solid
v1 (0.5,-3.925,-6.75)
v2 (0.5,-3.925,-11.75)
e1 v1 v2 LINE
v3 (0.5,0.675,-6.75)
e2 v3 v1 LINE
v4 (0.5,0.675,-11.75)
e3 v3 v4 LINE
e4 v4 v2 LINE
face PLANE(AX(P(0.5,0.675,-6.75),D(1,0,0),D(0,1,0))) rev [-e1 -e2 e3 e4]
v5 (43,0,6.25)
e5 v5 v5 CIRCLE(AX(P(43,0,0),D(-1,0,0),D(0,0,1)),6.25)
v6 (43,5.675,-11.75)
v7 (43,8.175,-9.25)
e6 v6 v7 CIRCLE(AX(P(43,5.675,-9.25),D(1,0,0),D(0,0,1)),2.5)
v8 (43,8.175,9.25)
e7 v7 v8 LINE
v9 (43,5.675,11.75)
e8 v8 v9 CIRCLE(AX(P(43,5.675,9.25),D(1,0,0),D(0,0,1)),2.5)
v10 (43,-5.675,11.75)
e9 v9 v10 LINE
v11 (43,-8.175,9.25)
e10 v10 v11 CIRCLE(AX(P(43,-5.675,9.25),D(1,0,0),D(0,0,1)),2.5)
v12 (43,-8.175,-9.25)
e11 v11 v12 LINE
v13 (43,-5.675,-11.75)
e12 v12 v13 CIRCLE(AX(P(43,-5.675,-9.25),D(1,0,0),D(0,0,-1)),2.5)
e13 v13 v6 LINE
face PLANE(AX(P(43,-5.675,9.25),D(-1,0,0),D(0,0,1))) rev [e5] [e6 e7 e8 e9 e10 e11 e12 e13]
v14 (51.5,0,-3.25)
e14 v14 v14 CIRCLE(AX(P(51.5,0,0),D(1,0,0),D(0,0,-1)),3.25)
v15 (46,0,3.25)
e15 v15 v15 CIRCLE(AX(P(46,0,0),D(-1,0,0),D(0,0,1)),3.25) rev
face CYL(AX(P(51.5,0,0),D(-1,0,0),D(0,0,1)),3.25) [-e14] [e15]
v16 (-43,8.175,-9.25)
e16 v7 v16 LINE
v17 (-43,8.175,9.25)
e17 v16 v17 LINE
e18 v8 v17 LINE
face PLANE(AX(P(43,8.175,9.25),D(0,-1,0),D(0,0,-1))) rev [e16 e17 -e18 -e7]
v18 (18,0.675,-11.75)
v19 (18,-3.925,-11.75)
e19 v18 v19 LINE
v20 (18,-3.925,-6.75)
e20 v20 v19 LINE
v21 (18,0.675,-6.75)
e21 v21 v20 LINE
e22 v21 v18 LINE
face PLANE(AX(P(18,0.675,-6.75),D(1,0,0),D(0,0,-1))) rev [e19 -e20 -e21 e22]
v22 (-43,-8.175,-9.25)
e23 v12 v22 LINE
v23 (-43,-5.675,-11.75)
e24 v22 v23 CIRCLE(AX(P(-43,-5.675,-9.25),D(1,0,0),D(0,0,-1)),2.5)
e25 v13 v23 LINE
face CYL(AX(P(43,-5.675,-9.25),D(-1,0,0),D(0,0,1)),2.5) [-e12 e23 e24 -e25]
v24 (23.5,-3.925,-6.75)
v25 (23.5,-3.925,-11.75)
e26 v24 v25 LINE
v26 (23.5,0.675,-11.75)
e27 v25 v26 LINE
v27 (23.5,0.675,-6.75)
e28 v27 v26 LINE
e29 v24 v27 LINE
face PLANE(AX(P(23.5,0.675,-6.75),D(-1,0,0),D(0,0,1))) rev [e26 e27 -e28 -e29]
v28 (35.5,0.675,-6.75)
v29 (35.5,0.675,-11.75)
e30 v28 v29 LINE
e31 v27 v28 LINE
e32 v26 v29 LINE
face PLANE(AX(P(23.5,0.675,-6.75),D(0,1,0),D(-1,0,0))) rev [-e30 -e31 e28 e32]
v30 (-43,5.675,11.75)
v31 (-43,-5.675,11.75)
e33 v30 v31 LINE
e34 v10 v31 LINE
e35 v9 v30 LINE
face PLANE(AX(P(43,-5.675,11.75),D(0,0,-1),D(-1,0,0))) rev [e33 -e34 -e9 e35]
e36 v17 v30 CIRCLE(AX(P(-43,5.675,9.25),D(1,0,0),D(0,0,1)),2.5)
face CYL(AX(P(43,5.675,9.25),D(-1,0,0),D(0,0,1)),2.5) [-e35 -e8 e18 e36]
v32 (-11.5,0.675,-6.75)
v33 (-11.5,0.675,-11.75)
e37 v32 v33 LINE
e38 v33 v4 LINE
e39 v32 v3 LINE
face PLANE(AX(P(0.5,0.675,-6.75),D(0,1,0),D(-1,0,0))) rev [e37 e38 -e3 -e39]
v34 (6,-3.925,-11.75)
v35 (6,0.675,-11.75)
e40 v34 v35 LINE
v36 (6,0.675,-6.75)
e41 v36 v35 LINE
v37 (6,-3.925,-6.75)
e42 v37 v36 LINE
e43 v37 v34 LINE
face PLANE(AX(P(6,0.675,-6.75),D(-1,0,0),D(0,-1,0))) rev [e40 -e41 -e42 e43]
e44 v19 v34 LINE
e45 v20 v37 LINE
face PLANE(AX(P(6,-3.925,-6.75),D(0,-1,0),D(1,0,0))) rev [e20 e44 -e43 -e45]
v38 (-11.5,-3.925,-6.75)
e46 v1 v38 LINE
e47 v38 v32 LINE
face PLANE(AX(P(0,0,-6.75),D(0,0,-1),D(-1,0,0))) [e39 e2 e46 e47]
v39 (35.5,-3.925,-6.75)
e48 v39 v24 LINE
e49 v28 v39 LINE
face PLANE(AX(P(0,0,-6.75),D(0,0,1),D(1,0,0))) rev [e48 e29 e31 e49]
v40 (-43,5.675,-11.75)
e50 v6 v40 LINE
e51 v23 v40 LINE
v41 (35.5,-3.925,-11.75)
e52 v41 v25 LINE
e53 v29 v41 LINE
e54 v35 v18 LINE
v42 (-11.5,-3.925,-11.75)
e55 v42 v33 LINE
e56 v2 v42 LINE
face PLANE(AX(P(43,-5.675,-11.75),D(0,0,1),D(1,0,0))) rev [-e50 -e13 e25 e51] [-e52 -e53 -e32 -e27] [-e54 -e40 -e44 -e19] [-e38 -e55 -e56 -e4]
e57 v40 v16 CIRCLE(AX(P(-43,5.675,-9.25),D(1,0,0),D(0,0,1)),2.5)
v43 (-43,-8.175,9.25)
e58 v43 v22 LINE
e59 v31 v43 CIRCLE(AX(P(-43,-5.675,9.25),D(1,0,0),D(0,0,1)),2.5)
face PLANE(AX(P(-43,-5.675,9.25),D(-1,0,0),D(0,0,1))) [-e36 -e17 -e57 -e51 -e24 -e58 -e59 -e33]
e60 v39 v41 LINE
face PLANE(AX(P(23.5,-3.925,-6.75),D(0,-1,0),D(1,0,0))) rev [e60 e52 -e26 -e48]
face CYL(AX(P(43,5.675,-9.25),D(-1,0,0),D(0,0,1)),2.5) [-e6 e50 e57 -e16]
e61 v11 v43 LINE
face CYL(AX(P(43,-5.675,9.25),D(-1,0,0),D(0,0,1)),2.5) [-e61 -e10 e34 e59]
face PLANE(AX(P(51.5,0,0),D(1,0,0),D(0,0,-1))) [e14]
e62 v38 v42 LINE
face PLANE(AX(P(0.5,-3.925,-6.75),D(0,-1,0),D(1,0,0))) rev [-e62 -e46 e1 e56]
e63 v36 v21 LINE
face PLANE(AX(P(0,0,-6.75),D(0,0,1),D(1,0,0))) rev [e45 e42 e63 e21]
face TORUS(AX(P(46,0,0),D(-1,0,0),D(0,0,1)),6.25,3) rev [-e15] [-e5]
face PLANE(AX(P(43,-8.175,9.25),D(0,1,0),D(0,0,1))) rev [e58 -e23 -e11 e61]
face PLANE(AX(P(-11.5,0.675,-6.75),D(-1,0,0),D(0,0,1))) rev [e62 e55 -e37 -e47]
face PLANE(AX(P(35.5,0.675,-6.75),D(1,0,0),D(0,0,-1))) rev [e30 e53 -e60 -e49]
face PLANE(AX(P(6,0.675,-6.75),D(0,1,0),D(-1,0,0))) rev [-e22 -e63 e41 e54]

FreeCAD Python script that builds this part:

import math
import FreeCAD as App
import Part
import Sketcher


def edges_at(feature, points):
    """Names of the edges that pass closest to the given points."""
    edges = feature.Shape.Edges
    near = lambda p: min(range(len(edges)), key=lambda i: edges[i].distToShape(Part.Vertex(*p))[0])
    return sorted({f"Edge{near(p) + 1}" for p in points})

doc = App.newDocument("Part")
body = doc.addObject("PartDesign::Body", "Body")

sketch1 = body.newObject("Sketcher::SketchObject", "Sketch")
sketch1.AttachmentSupport = (doc.getObject("YZ_Plane"), [""])
sketch1.MapMode = "FlatFace"
sketch1.addGeometry([
    Part.LineSegment(App.Vector(-8.2, 9.2, 0), App.Vector(-8.2, -9.2, 0)),
    Part.ArcOfCircle(Part.Circle(App.Vector(-5.7, -9.2, 0), App.Vector(0, 0, 1), 2.5), math.radians(180), math.radians(270)),
    Part.LineSegment(App.Vector(-5.7, -11.8, 0), App.Vector(5.7, -11.8, 0)),
    Part.ArcOfCircle(Part.Circle(App.Vector(5.7, -9.2, 0), App.Vector(0, 0, 1), 2.5), math.radians(-90), math.radians(0)),
    Part.LineSegment(App.Vector(8.2, -9.2, 0), App.Vector(8.2, 9.2, 0)),
    Part.ArcOfCircle(Part.Circle(App.Vector(5.7, 9.2, 0), App.Vector(0, 0, 1), 2.5), math.radians(0), math.radians(90)),
    Part.LineSegment(App.Vector(5.7, 11.8, 0), App.Vector(-5.7, 11.8, 0)),
    Part.ArcOfCircle(Part.Circle(App.Vector(-5.7, 9.2, 0), App.Vector(0, 0, 1), 2.5), math.radians(90), math.radians(180)),
], False)
sketch1.addConstraint([
    Sketcher.Constraint("Tangent", 0, 2, 1, 1),
    Sketcher.Constraint("Tangent", 1, 2, 2, 1),
    Sketcher.Constraint("Tangent", 2, 2, 3, 1),
    Sketcher.Constraint("Tangent", 3, 2, 4, 1),
    Sketcher.Constraint("Tangent", 4, 2, 5, 1),
    Sketcher.Constraint("Tangent", 5, 2, 6, 1),
    Sketcher.Constraint("Tangent", 6, 2, 7, 1),
    Sketcher.Constraint("Tangent", 7, 2, 0, 1),
    Sketcher.Constraint("Vertical", 0),
    Sketcher.Constraint("Horizontal", 2),
    Sketcher.Constraint("Vertical", 4),
    Sketcher.Constraint("Horizontal", 6),
    Sketcher.Constraint("Equal", 1, 3),
    Sketcher.Constraint("Equal", 3, 5),
    Sketcher.Constraint("Equal", 5, 7),
    Sketcher.Constraint("Symmetric", 1, 3, 5, 3, -1, 1),
    Sketcher.Constraint("Radius", 1, 2.5),
    Sketcher.Constraint("DistanceY", 0, 2, 0, 1, 18.5),
    Sketcher.Constraint("DistanceX", 2, 1, 2, 2, 11.35),
])
pad1 = body.newObject("PartDesign::Pad", "Pad")
pad1.Profile = sketch1
pad1.Length = 86
pad1.Midplane = True

sketch2 = body.newObject("Sketcher::SketchObject", "Sketch001")
sketch2.AttachmentSupport = (doc.getObject("YZ_Plane"), [""])
sketch2.MapMode = "FlatFace"
sketch2.AttachmentOffset = App.Placement(App.Vector(0, 0, 43), App.Rotation())
sketch2.addGeometry(Part.Circle(App.Vector(0, 0, 0), App.Vector(0, 0, 1), 3.2), False)
sketch2.addConstraint([
    Sketcher.Constraint("Coincident", 0, 3, -1, 1),
    Sketcher.Constraint("Diameter", 0, 6.5),
])
pad2 = body.newObject("PartDesign::Pad", "Pad001")
pad2.Profile = sketch2
pad2.Length = 8.5
doc.recompute()

fillet = body.newObject("PartDesign::Fillet", "Fillet")
fillet.Base = (pad2, edges_at(pad2, [(43, 0, -3.25)]))
fillet.Radius = 3

sketch3 = body.newObject("Sketcher::SketchObject", "Sketch002")
sketch3.AttachmentSupport = (doc.getObject("XY_Plane"), [""])
sketch3.MapMode = "FlatFace"
sketch3.AttachmentOffset = App.Placement(App.Vector(0, 0, -11.75), App.Rotation())
sketch3.addGeometry([
    Part.LineSegment(App.Vector(0.5, 0.7, 0), App.Vector(0.5, -3.9, 0)),
    Part.LineSegment(App.Vector(0.5, -3.9, 0), App.Vector(-11.5, -3.9, 0)),
    Part.LineSegment(App.Vector(-11.5, -3.9, 0), App.Vector(-11.5, 0.7, 0)),
    Part.LineSegment(App.Vector(-11.5, 0.7, 0), App.Vector(0.5, 0.7, 0)),
    Part.LineSegment(App.Vector(18, 0.7, 0), App.Vector(18, -3.9, 0)),
    Part.LineSegment(App.Vector(18, -3.9, 0), App.Vector(6, -3.9, 0)),
    Part.LineSegment(App.Vector(6, -3.9, 0), App.Vector(6, 0.7, 0)),
    Part.LineSegment(App.Vector(6, 0.7, 0), App.Vector(18, 0.7, 0)),
    Part.LineSegment(App.Vector(35.5, 0.7, 0), App.Vector(35.5, -3.9, 0)),
    Part.LineSegment(App.Vector(35.5, -3.9, 0), App.Vector(23.5, -3.9, 0)),
    Part.LineSegment(App.Vector(23.5, -3.9, 0), App.Vector(23.5, 0.7, 0)),
    Part.LineSegment(App.Vector(23.5, 0.7, 0), App.Vector(35.5, 0.7, 0)),
], False)
sketch3.addConstraint([
    Sketcher.Constraint("Coincident", 0, 2, 1, 1),
    Sketcher.Constraint("Coincident", 1, 2, 2, 1),
    Sketcher.Constraint("Coincident", 2, 2, 3, 1),
    Sketcher.Constraint("Coincident", 3, 2, 0, 1),
    Sketcher.Constraint("Coincident", 4, 2, 5, 1),
    Sketcher.Constraint("Coincident", 5, 2, 6, 1),
    Sketcher.Constraint("Coincident", 6, 2, 7, 1),
    Sketcher.Constraint("Coincident", 7, 2, 4, 1),
    Sketcher.Constraint("Coincident", 8, 2, 9, 1),
    Sketcher.Constraint("Coincident", 9, 2, 10, 1),
    Sketcher.Constraint("Coincident", 10, 2, 11, 1),
    Sketcher.Constraint("Coincident", 11, 2, 8, 1),
    Sketcher.Constraint("Vertical", 0),
    Sketcher.Constraint("Horizontal", 1),
    Sketcher.Constraint("Vertical", 2),
    Sketcher.Constraint("Horizontal", 3),
    Sketcher.Constraint("Vertical", 4),
    Sketcher.Constraint("Horizontal", 5),
    Sketcher.Constraint("Vertical", 6),
    Sketcher.Constraint("Horizontal", 7),
    Sketcher.Constraint("Vertical", 8),
    Sketcher.Constraint("Horizontal", 9),
    Sketcher.Constraint("Vertical", 10),
    Sketcher.Constraint("Horizontal", 11),
    Sketcher.Constraint("Horizontal", 1, 2, 4, 2),
    Sketcher.Constraint("Horizontal", 3, 2, 6, 2),
    Sketcher.Constraint("Horizontal", 5, 2, 8, 2),
    Sketcher.Constraint("Horizontal", 7, 2, 10, 2),
    Sketcher.Constraint("Equal", 3, 5),
    Sketcher.Constraint("Equal", 7, 9),
    Sketcher.Constraint("DistanceX", 1, 2, 1, 1, 12.0),
    Sketcher.Constraint("DistanceY", 0, 2, 0, 1, 4.6),
    Sketcher.Constraint("DistanceX", -1, 1, 4, 2, 18.0),
    Sketcher.Constraint("DistanceX", 0, 2, 8, 2, 35.0),
    Sketcher.Constraint("DistanceX", -1, 1, 0, 2, 0.5),
    Sketcher.Constraint("DistanceY", 0, 2, -1, 1, 3.925),
])
pocket1 = body.newObject("PartDesign::Pocket", "Pocket")
pocket1.Profile = sketch3
pocket1.Length = 5
pocket1.Reversed = True

doc.recompute()
